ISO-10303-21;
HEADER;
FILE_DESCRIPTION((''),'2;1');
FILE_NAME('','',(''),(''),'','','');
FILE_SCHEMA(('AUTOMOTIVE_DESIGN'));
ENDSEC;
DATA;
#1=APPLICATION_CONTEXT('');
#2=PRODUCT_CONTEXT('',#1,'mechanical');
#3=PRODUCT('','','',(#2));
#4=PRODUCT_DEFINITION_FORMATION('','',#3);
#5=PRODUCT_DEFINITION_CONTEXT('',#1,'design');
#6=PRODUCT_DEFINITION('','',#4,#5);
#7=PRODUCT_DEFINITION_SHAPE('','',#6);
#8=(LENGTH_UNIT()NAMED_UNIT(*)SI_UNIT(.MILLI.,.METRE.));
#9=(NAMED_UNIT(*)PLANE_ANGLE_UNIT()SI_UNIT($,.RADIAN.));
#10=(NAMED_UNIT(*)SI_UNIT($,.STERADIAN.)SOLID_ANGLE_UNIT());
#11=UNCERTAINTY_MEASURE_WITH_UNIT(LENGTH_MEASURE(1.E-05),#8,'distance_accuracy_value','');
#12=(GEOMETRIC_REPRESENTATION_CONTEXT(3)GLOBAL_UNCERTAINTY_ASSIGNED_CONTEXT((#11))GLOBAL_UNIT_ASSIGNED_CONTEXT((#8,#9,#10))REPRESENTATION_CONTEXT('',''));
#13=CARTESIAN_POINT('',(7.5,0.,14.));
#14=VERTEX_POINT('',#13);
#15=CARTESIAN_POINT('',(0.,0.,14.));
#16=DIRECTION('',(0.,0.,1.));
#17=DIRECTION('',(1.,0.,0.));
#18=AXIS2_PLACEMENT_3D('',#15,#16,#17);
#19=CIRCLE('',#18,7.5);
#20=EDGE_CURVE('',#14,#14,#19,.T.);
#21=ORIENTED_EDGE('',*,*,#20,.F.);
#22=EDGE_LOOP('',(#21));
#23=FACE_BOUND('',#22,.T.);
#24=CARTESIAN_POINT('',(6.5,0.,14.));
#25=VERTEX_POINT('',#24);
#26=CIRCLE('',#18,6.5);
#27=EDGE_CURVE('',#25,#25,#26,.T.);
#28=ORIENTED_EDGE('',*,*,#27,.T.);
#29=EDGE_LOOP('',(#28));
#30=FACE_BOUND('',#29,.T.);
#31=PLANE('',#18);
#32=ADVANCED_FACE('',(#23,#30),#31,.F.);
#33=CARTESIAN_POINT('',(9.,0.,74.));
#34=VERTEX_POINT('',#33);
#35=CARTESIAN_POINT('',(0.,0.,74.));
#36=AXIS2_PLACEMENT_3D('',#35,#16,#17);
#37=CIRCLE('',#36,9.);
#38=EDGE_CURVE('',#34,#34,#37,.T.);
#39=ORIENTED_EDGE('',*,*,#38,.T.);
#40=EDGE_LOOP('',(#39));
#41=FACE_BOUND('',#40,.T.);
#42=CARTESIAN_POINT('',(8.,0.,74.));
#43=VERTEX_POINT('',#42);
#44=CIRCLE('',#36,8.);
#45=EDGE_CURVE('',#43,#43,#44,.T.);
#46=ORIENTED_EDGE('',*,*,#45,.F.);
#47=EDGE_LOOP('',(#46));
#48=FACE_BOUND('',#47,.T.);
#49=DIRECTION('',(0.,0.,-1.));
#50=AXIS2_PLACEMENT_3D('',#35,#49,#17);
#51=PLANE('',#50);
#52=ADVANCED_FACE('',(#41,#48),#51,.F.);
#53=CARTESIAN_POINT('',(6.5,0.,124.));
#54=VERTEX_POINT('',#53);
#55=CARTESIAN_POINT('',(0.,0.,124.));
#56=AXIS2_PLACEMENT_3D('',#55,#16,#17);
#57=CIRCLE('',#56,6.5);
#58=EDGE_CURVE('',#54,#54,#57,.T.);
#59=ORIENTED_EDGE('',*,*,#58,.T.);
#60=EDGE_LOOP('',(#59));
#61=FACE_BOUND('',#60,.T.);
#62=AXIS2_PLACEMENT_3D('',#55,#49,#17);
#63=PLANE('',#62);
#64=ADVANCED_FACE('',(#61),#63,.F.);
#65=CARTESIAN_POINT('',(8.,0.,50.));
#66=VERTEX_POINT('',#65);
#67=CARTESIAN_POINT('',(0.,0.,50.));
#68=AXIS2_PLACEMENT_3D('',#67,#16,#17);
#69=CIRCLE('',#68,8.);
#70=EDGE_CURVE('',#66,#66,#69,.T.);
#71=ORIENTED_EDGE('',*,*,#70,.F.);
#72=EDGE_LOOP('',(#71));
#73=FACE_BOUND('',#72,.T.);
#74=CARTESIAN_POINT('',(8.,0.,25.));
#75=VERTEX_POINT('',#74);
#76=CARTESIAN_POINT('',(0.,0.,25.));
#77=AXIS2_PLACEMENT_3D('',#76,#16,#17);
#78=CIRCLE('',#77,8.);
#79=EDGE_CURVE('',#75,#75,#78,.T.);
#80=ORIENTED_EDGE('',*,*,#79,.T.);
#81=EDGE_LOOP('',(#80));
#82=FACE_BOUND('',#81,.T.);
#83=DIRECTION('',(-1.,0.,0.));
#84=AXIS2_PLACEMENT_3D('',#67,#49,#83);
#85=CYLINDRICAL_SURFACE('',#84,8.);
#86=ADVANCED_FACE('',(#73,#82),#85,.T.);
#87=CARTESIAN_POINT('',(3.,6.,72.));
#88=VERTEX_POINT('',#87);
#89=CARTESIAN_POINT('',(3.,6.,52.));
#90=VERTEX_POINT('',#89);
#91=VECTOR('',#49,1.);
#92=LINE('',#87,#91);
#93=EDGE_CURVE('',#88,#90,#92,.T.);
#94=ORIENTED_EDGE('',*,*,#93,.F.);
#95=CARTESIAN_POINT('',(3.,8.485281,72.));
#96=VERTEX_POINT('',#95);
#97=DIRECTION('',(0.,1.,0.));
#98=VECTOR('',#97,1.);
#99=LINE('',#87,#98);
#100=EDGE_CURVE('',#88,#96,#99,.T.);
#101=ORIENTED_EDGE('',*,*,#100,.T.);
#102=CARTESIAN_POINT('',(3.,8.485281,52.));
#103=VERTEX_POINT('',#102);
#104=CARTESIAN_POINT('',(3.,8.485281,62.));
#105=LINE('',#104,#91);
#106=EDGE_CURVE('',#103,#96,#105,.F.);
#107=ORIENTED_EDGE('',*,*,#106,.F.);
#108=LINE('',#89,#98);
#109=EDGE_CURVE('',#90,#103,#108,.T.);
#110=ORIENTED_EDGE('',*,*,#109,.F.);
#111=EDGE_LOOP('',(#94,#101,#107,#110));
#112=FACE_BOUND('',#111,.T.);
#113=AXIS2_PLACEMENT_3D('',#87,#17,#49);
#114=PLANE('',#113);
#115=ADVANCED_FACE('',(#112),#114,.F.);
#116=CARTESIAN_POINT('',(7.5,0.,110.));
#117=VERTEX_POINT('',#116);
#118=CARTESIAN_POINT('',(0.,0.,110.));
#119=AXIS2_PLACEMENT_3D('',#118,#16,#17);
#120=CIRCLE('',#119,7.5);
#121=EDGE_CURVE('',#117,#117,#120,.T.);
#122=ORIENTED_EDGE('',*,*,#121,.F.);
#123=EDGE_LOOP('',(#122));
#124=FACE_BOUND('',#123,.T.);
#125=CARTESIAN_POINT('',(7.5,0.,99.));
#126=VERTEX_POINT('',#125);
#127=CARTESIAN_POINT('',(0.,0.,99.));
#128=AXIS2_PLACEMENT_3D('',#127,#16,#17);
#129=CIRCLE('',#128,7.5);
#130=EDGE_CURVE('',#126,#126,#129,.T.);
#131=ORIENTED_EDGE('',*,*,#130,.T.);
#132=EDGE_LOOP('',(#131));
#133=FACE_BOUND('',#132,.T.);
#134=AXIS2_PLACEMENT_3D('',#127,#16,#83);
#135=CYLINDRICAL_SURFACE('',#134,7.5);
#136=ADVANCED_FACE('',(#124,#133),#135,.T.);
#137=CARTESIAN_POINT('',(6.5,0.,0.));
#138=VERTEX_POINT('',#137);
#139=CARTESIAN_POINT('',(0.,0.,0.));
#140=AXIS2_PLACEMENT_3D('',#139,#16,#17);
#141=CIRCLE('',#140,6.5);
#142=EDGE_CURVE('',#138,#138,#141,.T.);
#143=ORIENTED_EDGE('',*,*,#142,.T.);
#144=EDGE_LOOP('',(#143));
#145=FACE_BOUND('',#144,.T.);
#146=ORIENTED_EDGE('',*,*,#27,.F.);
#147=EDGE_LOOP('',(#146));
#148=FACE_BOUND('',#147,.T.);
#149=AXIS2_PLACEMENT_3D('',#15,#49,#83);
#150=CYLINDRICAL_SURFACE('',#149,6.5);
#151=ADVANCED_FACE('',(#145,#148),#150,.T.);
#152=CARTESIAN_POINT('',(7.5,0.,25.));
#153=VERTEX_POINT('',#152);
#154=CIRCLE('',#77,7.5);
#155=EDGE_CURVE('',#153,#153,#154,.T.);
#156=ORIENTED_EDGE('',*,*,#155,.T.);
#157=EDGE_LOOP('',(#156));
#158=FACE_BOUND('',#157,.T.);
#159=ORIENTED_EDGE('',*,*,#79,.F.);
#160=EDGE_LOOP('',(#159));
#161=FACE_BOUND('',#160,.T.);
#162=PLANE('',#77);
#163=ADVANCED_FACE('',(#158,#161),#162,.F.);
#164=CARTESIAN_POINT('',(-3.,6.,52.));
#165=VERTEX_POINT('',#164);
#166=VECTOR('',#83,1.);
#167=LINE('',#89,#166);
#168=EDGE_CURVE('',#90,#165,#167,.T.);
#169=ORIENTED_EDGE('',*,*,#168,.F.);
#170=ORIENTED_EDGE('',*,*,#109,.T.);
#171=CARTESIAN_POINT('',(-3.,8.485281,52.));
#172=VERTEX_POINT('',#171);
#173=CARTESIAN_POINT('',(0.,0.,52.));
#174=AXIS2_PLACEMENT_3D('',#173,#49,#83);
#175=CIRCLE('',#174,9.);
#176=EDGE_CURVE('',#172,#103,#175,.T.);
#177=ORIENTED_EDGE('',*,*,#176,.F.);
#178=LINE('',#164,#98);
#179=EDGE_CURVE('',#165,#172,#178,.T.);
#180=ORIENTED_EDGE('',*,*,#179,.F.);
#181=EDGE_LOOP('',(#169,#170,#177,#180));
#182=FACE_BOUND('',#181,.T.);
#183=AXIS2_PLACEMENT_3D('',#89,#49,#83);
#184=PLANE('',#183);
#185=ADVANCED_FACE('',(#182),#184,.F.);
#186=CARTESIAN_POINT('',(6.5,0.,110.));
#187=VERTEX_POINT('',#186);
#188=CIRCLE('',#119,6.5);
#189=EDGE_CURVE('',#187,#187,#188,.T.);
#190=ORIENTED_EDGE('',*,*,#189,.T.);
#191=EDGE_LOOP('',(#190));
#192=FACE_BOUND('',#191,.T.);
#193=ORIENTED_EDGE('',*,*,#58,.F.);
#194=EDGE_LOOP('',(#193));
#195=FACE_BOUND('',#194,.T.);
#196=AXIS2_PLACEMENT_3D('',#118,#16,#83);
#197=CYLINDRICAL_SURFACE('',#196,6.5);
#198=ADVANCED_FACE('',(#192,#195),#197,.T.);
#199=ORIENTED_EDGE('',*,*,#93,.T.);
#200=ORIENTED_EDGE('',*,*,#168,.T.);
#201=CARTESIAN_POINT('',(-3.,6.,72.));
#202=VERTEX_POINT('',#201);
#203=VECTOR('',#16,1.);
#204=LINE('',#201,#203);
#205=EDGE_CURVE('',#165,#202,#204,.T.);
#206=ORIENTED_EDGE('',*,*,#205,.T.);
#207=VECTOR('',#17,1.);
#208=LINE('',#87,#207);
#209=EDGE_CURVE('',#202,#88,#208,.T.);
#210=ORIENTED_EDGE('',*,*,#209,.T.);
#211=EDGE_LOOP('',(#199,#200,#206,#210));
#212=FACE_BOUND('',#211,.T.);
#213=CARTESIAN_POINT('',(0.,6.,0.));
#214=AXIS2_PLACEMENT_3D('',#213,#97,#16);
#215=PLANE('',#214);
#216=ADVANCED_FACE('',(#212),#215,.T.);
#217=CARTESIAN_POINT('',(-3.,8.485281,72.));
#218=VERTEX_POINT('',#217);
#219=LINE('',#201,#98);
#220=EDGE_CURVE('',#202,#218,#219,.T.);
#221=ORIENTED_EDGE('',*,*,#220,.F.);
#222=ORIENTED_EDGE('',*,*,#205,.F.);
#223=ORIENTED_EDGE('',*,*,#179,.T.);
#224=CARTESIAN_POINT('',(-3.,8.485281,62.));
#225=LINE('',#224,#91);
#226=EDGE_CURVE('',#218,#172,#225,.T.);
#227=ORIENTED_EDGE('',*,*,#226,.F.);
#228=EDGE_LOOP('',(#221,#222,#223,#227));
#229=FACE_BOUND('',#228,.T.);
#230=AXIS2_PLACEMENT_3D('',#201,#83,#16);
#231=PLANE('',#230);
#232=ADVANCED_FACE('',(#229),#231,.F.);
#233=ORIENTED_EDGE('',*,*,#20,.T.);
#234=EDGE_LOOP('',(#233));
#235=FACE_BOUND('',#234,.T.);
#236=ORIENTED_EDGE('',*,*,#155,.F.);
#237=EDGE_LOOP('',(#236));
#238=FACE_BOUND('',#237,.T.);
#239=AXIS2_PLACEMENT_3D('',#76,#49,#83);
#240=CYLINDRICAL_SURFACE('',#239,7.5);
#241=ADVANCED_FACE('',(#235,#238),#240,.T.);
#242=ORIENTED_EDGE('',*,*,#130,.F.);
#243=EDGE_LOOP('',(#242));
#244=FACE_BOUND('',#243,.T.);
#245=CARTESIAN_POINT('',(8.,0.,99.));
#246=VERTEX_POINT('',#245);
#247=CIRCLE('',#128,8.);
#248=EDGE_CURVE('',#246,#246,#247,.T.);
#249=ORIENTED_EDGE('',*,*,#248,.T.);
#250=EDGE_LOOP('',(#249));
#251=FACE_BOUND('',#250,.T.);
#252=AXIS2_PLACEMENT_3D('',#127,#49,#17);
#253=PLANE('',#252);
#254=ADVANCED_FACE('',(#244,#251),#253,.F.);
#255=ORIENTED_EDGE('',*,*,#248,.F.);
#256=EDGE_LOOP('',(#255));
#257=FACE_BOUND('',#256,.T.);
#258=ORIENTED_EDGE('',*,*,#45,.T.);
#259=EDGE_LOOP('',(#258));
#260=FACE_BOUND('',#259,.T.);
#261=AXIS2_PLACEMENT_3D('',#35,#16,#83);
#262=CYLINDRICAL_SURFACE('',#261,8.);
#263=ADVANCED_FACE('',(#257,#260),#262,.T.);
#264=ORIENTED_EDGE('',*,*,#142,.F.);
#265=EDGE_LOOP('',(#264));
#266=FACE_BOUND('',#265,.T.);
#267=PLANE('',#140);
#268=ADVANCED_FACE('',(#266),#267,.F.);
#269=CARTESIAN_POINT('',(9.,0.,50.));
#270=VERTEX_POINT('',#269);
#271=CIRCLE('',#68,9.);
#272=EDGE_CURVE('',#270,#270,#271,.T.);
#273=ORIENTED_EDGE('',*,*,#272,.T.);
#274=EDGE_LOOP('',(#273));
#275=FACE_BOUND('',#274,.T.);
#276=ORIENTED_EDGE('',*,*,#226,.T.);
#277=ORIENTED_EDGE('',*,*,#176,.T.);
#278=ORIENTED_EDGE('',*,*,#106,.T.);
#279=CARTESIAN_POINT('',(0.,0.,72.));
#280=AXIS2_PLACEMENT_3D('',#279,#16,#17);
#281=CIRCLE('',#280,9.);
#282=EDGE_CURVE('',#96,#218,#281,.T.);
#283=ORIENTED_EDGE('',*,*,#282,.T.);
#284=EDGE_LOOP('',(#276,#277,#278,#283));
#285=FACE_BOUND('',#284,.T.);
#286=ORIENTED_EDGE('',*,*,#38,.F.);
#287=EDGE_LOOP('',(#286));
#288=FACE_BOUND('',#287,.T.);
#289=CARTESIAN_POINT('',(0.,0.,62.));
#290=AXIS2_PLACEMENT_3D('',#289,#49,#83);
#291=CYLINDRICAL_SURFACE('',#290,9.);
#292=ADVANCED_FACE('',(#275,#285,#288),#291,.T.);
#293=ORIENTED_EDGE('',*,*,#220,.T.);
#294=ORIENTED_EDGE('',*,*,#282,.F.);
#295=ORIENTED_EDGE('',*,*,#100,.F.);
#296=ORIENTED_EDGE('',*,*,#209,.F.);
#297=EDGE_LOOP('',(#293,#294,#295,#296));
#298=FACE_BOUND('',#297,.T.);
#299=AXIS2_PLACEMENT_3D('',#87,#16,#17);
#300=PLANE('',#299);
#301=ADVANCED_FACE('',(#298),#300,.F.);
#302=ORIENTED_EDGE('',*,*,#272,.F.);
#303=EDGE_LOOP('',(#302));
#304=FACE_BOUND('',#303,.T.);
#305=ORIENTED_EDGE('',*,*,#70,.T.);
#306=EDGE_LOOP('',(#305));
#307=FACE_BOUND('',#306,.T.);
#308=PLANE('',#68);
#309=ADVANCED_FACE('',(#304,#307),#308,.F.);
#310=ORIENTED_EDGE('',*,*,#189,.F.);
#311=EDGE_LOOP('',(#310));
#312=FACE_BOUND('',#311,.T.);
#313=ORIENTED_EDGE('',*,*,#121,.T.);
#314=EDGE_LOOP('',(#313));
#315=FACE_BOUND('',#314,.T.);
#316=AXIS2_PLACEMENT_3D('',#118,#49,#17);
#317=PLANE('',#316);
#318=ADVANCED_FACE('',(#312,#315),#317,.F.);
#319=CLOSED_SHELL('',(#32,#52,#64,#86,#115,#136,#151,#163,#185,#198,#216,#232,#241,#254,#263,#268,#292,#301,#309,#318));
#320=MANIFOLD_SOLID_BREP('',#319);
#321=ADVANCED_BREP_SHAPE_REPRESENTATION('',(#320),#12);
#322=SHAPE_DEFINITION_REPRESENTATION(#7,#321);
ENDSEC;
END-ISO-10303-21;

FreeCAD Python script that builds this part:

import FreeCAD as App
import Part
import Sketcher
from FreeCAD import Vector
Q = App.Units.Quantity

doc = App.newDocument("Part")
params = doc.addObject("Spreadsheet::Sheet", "Params")
for row, (alias, value) in enumerate([
    ("sketch1_diameter", "13 mm"),
    ("pad1_length", "14 mm"),
    ("sketch2_diameter", "15 mm"),
    ("pad2_length", "11 mm"),
    ("sketch3_diameter", "16 mm"),
    ("pad3_length", "25 mm"),
    ("sketch4_diameter", "18 mm"),
    ("pad4_length", "12 mm"),
    ("sketch5_width", "6 mm"),
    ("sketch5_height", "20 mm"),
    ("pocket1_length", "3 mm"),
], start=1):
    params.set(f"A{row}", alias)
    params.set(f"B{row}", "=" + value)
    params.setAlias(f"B{row}", alias)

body = doc.addObject("PartDesign::Body", "Body")

# Sketch on XY plane
sketch1 = body.newObject("Sketcher::SketchObject", "Sketch")
sketch1.AttachmentSupport = (doc.getObject("XY_Plane"), [""])
sketch1.MapMode = "FlatFace"
sketch1.addGeometry(Part.Circle(Vector(0, 0, 0), Vector(0, 0, 1), 6), False)
sketch1.addConstraint(Sketcher.Constraint("Coincident", 0, 3, -1, 1))
sketch1.addConstraint(Sketcher.Constraint("Diameter", 0, Q("13 mm")))
sketch1.setExpression("Constraints[1]", "Params.sketch1_diameter")
pad1 = body.newObject("PartDesign::Pad", "Pad")
pad1.Profile = sketch1
pad1.setExpression("Length", "Params.pad1_length")

# Sketch on XY plane
sketch2 = body.newObject("Sketcher::SketchObject", "Sketch001")
sketch2.AttachmentSupport = (doc.getObject("XY_Plane"), [""])
sketch2.MapMode = "FlatFace"
sketch2.AttachmentOffset = App.Placement(Vector(0, 0, 14), App.Rotation())
sketch2.addGeometry(Part.Circle(Vector(0, 0, 0), Vector(0, 0, 1), 8), False)
sketch2.addConstraint(Sketcher.Constraint("Coincident", 0, 3, -1, 1))
sketch2.addConstraint(Sketcher.Constraint("Diameter", 0, Q("15 mm")))
sketch2.setExpression("Constraints[1]", "Params.sketch2_diameter")
pad2 = body.newObject("PartDesign::Pad", "Pad001")
pad2.Profile = sketch2
pad2.setExpression("Length", "Params.pad2_length")

# Sketch on XY plane
sketch3 = body.newObject("Sketcher::SketchObject", "Sketch002")
sketch3.AttachmentSupport = (doc.getObject("XY_Plane"), [""])
sketch3.MapMode = "FlatFace"
sketch3.AttachmentOffset = App.Placement(Vector(0, 0, 25), App.Rotation())
sketch3.addGeometry(Part.Circle(Vector(0, 0, 0), Vector(0, 0, 1), 8), False)
sketch3.addConstraint(Sketcher.Constraint("Coincident", 0, 3, -1, 1))
sketch3.addConstraint(Sketcher.Constraint("Diameter", 0, Q("16 mm")))
sketch3.setExpression("Constraints[1]", "Params.sketch3_diameter")
pad3 = body.newObject("PartDesign::Pad", "Pad002")
pad3.Profile = sketch3
pad3.setExpression("Length", "Params.pad3_length")

# Sketch on XY plane
sketch4 = body.newObject("Sketcher::SketchObject", "Sketch003")
sketch4.AttachmentSupport = (doc.getObject("XY_Plane"), [""])
sketch4.MapMode = "FlatFace"
sketch4.AttachmentOffset = App.Placement(Vector(0, 0, 50), App.Rotation())
sketch4.addGeometry(Part.Circle(Vector(0, 0, 0), Vector(0, 0, 1), 9), False)
sketch4.addConstraint(Sketcher.Constraint("Coincident", 0, 3, -1, 1))
sketch4.addConstraint(Sketcher.Constraint("Diameter", 0, Q("18 mm")))
sketch4.setExpression("Constraints[1]", "Params.sketch4_diameter")
pad4 = body.newObject("PartDesign::Pad", "Pad003")
pad4.Profile = sketch4
pad4.setExpression("Length", "Params.pad4_length")
body2 = doc.addObject("PartDesign::Body", "Body001")
doc.recompute()

body2.BaseFeature = body
doc.recompute()

mirroring = doc.addObject("Part::Mirroring", "Mirroring")
mirroring.Source = body
mirroring.Base = Vector(0, 0, 62)
mirroring.Normal = Vector(0, 0, 1)
body3 = doc.addObject("PartDesign::Body", "Body002")
body3.BaseFeature = mirroring
boolean = body2.newObject("PartDesign::Boolean", "Boolean")
boolean.Type = "Fuse"
boolean.addObjects([body3])
doc.recompute()

# Sketch on XZ plane
sketch5 = body2.newObject("Sketcher::SketchObject", "Sketch004")
sketch5.AttachmentSupport = (doc.getObject("XZ_Plane001"), [""])
sketch5.MapMode = "FlatFace"
sketch5.AttachmentOffset = App.Placement(Vector(0, 0, -9), App.Rotation())
sketch5.addGeometry(Part.LineSegment(Vector(3, 72, 0), Vector(3, 52, 0)), False)
sketch5.addGeometry(Part.LineSegment(Vector(3, 52, 0), Vector(-3, 52, 0)), False)
sketch5.addGeometry(Part.LineSegment(Vector(-3, 52, 0), Vector(-3, 72, 0)), False)
sketch5.addGeometry(Part.LineSegment(Vector(-3, 72, 0), Vector(3, 72, 0)), False)
sketch5.addConstraint(Sketcher.Constraint("Coincident", 0, 2, 1, 1))
sketch5.addConstraint(Sketcher.Constraint("Coincident", 1, 2, 2, 1))
sketch5.addConstraint(Sketcher.Constraint("Coincident", 2, 2, 3, 1))
sketch5.addConstraint(Sketcher.Constraint("Coincident", 3, 2, 0, 1))
sketch5.addConstraint(Sketcher.Constraint("Vertical", 0))
sketch5.addConstraint(Sketcher.Constraint("Horizontal", 1))
sketch5.addConstraint(Sketcher.Constraint("Vertical", 2))
sketch5.addConstraint(Sketcher.Constraint("Horizontal", 3))
sketch5.addConstraint(Sketcher.Constraint("DistanceX", 1, 2, 1, 1, Q("6 mm")))
sketch5.addConstraint(Sketcher.Constraint("DistanceY", 0, 2, 0, 1, Q("20 mm")))
sketch5.addConstraint(Sketcher.Constraint("DistanceX", -1, 1, 0, 2, Q("3 mm")))
sketch5.addConstraint(Sketcher.Constraint("DistanceY", -1, 1, 0, 2, Q("52 mm")))
sketch5.setExpression("Constraints[8]", "Params.sketch5_width")
sketch5.setExpression("Constraints[9]", "Params.sketch5_height")
pocket1 = body2.newObject("PartDesign::Pocket", "Pocket")
pocket1.Profile = sketch5
pocket1.setExpression("Length", "Params.pocket1_length")
pocket1.Reversed = True
mirroring.Visibility = False

doc.recompute()
